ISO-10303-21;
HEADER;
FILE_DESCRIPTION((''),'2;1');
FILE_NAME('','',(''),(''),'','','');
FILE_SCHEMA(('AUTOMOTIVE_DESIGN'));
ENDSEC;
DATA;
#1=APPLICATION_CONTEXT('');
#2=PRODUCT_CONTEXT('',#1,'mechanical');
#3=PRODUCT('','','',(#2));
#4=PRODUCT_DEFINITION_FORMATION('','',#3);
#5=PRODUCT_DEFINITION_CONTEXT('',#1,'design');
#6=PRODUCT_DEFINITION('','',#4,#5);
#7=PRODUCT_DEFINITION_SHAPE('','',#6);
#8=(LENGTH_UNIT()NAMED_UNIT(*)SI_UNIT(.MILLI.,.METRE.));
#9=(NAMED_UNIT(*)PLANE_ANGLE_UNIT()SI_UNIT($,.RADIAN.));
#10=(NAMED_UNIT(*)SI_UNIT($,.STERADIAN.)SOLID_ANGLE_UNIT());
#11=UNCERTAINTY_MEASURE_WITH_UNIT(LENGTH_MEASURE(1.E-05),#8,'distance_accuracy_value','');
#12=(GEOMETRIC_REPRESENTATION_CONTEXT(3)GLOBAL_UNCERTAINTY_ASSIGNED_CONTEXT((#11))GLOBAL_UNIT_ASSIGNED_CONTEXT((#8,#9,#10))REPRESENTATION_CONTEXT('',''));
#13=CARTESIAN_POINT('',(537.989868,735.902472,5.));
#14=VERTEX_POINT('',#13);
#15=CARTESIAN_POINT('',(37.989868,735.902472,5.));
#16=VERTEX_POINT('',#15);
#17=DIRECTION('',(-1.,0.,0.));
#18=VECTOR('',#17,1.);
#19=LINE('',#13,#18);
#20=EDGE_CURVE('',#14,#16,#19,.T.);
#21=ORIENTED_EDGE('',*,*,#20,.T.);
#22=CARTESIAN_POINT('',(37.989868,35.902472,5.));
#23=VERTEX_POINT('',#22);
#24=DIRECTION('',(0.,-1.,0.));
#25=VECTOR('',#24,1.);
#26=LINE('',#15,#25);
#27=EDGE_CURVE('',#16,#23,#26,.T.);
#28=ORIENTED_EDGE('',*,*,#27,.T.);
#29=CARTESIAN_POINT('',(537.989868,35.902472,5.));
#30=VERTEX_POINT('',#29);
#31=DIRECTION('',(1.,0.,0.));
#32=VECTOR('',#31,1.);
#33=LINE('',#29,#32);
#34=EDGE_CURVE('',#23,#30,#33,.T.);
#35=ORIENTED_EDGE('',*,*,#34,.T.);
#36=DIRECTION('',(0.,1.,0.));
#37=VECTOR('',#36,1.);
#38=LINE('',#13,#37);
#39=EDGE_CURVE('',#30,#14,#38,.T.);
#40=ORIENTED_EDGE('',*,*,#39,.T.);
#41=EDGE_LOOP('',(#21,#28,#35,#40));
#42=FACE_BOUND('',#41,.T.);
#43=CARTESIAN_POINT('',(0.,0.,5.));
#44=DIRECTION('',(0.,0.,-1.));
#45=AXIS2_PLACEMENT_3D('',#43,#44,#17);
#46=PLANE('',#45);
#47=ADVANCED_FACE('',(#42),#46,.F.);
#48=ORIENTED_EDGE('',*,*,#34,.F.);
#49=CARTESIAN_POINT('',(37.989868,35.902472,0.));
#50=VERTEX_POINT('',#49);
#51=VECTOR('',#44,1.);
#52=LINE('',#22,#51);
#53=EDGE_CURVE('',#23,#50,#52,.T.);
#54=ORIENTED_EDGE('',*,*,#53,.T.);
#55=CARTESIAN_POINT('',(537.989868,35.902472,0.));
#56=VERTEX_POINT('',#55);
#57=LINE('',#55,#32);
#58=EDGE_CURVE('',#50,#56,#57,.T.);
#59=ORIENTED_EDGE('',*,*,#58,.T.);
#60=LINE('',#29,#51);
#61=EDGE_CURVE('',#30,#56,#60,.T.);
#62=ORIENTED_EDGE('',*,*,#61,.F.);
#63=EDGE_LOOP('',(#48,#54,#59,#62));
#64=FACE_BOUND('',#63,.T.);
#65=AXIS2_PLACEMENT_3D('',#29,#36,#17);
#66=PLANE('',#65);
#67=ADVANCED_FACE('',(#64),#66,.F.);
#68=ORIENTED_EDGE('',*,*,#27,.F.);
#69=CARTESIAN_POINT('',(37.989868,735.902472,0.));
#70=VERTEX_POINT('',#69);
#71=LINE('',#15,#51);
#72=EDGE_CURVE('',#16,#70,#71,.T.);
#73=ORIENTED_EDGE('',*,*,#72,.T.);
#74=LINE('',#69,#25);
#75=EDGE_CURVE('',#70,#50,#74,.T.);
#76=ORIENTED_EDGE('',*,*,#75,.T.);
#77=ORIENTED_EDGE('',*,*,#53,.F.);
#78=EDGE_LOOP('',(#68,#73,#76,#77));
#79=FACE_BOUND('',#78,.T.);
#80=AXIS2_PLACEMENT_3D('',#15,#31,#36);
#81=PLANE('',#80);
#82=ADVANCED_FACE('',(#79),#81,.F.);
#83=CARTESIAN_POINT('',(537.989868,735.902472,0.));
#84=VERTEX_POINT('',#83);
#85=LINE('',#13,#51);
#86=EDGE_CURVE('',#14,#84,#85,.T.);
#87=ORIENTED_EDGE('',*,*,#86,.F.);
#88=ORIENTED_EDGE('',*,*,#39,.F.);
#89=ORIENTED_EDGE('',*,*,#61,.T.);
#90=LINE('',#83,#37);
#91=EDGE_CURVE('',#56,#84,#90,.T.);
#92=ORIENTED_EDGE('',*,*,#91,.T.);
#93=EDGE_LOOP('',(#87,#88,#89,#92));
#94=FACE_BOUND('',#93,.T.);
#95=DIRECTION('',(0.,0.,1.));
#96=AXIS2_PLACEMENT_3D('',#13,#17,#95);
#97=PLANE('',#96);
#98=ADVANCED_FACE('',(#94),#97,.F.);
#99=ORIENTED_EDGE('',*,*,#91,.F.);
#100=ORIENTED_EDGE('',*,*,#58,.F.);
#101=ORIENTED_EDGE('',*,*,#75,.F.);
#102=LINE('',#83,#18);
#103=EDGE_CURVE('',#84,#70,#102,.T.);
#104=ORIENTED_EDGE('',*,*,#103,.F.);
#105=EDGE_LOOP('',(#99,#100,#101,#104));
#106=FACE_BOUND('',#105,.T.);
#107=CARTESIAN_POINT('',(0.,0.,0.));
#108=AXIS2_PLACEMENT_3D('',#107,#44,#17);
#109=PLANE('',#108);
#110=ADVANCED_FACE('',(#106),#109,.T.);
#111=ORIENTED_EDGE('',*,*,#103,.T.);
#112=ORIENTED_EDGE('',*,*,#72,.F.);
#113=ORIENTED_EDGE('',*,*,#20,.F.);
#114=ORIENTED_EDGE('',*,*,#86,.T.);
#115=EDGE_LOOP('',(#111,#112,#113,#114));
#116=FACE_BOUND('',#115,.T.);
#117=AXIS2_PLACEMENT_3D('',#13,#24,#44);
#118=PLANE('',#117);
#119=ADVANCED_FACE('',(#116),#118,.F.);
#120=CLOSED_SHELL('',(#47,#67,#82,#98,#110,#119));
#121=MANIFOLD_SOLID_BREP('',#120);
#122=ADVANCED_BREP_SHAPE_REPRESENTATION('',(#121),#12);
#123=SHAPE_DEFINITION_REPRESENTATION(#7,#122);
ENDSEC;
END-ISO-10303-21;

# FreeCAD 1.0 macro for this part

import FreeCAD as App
import Part
import Sketcher

V = App.Vector
Q = App.Units.Quantity


def add_polygon(sketch, points):
    """Adds a closed chain of lines whose ends are joined by coincident constraints."""
    first, n = sketch.GeometryCount, len(points)
    for a, b in zip(points, points[1:] + points[:1]):
        sketch.addGeometry(Part.LineSegment(App.Vector(*a, 0), App.Vector(*b, 0)), False)
    for i in range(n):
        sketch.addConstraint(Sketcher.Constraint("Coincident", first + i, 2, first + (i + 1) % n, 1))

doc = App.newDocument("Part")
params = doc.addObject("Spreadsheet::Sheet", "Params")
for row, (alias, value) in enumerate([
    ("sketch1_width", "500 mm"),
    ("sketch1_height", "700 mm"),
    ("pad1_length", "5 mm"),
], start=1):
    params.set(f"A{row}", alias)
    params.set(f"B{row}", "=" + value)
    params.setAlias(f"B{row}", alias)

body = doc.addObject("PartDesign::Body", "Body")

# Sketch on XY plane
sketch1 = body.newObject("Sketcher::SketchObject", "Sketch")
sketch1.AttachmentSupport = (doc.getObject("XY_Plane"), [""])
sketch1.MapMode = "FlatFace"
add_polygon(sketch1, [(37.989868, 735.902472), (37.989868, 35.902472), (537.989868, 35.902472), (537.989868, 735.902472)])  # lines 0-3
sketch1.addConstraint([
    Sketcher.Constraint("Vertical", 0),
    Sketcher.Constraint("Horizontal", 1),
    Sketcher.Constraint("Vertical", 2),
    Sketcher.Constraint("Horizontal", 3),
    Sketcher.Constraint("DistanceX", 1, 1, 1, 2, Q("500 mm")),
    Sketcher.Constraint("DistanceY", 0, 2, 0, 1, Q("700 mm")),
    Sketcher.Constraint("DistanceX", -1, 1, 0, 2, Q("37.989868 mm")),
    Sketcher.Constraint("DistanceY", -1, 1, 0, 2, Q("35.902472 mm")),
])
sketch1.setExpression("Constraints[8]", "Params.sketch1_width")
sketch1.setExpression("Constraints[9]", "Params.sketch1_height")
pad1 = body.newObject("PartDesign::Pad", "Pad")
pad1.Profile = sketch1
pad1.setExpression("Length", "Params.pad1_length")

doc.recompute()
